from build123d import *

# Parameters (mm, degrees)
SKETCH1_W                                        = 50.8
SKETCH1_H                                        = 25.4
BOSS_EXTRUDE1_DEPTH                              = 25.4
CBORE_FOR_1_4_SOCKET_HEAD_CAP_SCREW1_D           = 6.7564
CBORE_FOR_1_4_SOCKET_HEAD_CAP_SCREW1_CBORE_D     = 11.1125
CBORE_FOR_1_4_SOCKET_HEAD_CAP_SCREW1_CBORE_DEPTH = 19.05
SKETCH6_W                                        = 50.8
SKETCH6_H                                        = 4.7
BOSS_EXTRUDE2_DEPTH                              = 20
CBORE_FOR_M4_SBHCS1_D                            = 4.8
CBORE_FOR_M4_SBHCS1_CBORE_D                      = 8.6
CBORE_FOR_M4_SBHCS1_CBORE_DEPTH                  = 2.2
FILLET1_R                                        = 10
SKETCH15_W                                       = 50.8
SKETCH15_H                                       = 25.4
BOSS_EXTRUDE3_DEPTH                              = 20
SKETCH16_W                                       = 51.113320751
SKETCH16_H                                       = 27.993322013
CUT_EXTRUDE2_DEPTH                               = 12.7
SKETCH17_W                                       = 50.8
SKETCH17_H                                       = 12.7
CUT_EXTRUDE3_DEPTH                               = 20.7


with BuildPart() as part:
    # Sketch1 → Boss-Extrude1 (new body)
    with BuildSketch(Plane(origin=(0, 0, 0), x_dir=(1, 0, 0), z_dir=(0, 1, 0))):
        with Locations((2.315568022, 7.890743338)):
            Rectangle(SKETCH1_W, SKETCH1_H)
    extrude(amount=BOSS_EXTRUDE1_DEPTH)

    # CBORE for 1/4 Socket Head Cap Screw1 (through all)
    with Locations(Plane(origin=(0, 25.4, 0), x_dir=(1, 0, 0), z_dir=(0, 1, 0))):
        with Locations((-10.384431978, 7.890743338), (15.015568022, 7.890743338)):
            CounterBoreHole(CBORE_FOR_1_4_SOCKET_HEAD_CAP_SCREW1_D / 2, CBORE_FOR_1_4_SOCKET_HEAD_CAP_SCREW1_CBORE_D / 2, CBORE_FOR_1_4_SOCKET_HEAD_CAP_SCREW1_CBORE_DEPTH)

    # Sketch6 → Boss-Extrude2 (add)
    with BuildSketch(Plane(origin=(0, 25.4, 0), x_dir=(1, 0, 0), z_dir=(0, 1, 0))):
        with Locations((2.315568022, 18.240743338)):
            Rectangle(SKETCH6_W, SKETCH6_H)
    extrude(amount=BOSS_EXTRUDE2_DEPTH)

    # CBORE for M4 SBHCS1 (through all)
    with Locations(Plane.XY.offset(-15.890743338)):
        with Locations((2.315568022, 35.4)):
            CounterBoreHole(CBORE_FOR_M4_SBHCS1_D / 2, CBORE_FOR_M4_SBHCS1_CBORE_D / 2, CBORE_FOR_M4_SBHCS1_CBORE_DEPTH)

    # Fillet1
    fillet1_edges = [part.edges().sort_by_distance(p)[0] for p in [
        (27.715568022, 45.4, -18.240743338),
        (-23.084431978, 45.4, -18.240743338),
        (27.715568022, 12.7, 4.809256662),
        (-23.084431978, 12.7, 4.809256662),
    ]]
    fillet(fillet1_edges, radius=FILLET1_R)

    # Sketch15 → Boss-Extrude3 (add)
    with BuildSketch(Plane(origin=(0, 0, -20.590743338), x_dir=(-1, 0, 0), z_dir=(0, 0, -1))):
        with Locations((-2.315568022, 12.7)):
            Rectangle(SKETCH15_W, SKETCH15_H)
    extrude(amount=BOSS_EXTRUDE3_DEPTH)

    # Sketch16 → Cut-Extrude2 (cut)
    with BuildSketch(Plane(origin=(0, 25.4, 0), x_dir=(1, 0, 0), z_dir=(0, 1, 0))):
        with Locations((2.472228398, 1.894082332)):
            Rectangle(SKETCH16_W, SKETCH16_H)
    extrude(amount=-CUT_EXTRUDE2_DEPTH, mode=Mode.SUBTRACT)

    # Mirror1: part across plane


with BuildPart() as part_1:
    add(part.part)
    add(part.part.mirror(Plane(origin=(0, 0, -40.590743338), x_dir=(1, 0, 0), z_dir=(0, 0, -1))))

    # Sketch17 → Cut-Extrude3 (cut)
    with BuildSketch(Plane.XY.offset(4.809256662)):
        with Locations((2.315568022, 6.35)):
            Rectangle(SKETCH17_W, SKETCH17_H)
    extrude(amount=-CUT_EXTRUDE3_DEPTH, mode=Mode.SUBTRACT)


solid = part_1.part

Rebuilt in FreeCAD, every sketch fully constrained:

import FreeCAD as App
import Part
import Sketcher

V = App.Vector


def edges_at(feature, points):
    """Names of the edges that pass closest to the given points."""
    edges = feature.Shape.Edges
    near = lambda p: min(range(len(edges)), key=lambda i: edges[i].distToShape(Part.Vertex(*p))[0])
    return sorted({f"Edge{near(p) + 1}" for p in points})

doc = App.newDocument("Part")
body = doc.addObject("PartDesign::Body", "Body")

sketch1 = body.newObject("Sketcher::SketchObject", "Sketch")
sketch1.AttachmentSupport = (doc.getObject("XZ_Plane"), [""])
sketch1.MapMode = "FlatFace"
sketch1.addGeometry(Part.LineSegment(V(-23, -21, 0), V(-23, 5, 0)), False)
sketch1.addGeometry(Part.LineSegment(V(-23, 5, 0), V(28, 5, 0)), False)
sketch1.addGeometry(Part.LineSegment(V(28, 5, 0), V(28, -21, 0)), False)
sketch1.addGeometry(Part.LineSegment(V(28, -21, 0), V(-23, -21, 0)), False)
sketch1.addConstraint(Sketcher.Constraint("Coincident", 0, 2, 1, 1))
sketch1.addConstraint(Sketcher.Constraint("Coincident", 1, 2, 2, 1))
sketch1.addConstraint(Sketcher.Constraint("Coincident", 2, 2, 3, 1))
sketch1.addConstraint(Sketcher.Constraint("Coincident", 3, 2, 0, 1))
sketch1.addConstraint(Sketcher.Constraint("Vertical", 0))
sketch1.addConstraint(Sketcher.Constraint("Horizontal", 1))
sketch1.addConstraint(Sketcher.Constraint("Vertical", 2))
sketch1.addConstraint(Sketcher.Constraint("Horizontal", 3))
sketch1.addConstraint(Sketcher.Constraint("DistanceX", 1, 1, 1, 2, 50.8))
sketch1.addConstraint(Sketcher.Constraint("DistanceY", 0, 1, 0, 2, 25.4))
sketch1.addConstraint(Sketcher.Constraint("DistanceX", 0, 2, -1, 1, 23.084432))
sketch1.addConstraint(Sketcher.Constraint("DistanceY", -1, 1, 0, 2, 4.809257))
pad1 = body.newObject("PartDesign::Pad", "Pad")
pad1.Profile = sketch1
pad1.Length = 25.4
pad1.Reversed = True

sketch2 = body.newObject("Sketcher::SketchObject", "Sketch001")
sketch2.AttachmentSupport = (doc.getObject("XZ_Plane"), [""])
sketch2.MapMode = "FlatFace"
sketch2.AttachmentOffset = App.Placement(V(0, 0, -25.4), App.Rotation())
sketch2.addGeometry(Part.Circle(V(-10.4, -7.9, 0), V(0, 0, 1), 3.4), False)
sketch2.addGeometry(Part.Circle(V(15, -7.9, 0), V(0, 0, 1), 3.4), False)
sketch2.addConstraint(Sketcher.Constraint("Equal", 0, 1))
sketch2.addConstraint(Sketcher.Constraint("Horizontal", 0, 3, 1, 3))
sketch2.addConstraint(Sketcher.Constraint("Diameter", 0, 6.7564))
sketch2.addConstraint(Sketcher.Constraint("DistanceX", 0, 3, 1, 3, 25.4))
sketch2.addConstraint(Sketcher.Constraint("DistanceX", 0, 3, -1, 1, 10.384432))
sketch2.addConstraint(Sketcher.Constraint("DistanceY", 0, 3, -1, 1, 7.890743))
doc.recompute()
hole = body.newObject("PartDesign::Hole", "Hole")
hole.Profile = sketch2
hole.ThreadType = "None"
hole.Diameter = 6.7564
hole.DepthType = "ThroughAll"
hole.HoleCutType = "Counterbore"
hole.HoleCutDiameter = 11.1125
hole.HoleCutDepth = 19.05
hole.Reversed = True

sketch3 = body.newObject("Sketcher::SketchObject", "Sketch002")
sketch3.AttachmentSupport = (doc.getObject("XZ_Plane"), [""])
sketch3.MapMode = "FlatFace"
sketch3.AttachmentOffset = App.Placement(V(0, 0, -25.4), App.Rotation())
sketch3.addGeometry(Part.LineSegment(V(-23.1, -20.6, 0), V(-23.1, -15.9, 0)), False)
sketch3.addGeometry(Part.LineSegment(V(-23.1, -15.9, 0), V(27.7, -15.9, 0)), False)
sketch3.addGeometry(Part.LineSegment(V(27.7, -15.9, 0), V(27.7, -20.6, 0)), False)
sketch3.addGeometry(Part.LineSegment(V(27.7, -20.6, 0), V(-23.1, -20.6, 0)), False)
sketch3.addConstraint(Sketcher.Constraint("Coincident", 0, 2, 1, 1))
sketch3.addConstraint(Sketcher.Constraint("Coincident", 1, 2, 2, 1))
sketch3.addConstraint(Sketcher.Constraint("Coincident", 2, 2, 3, 1))
sketch3.addConstraint(Sketcher.Constraint("Coincident", 3, 2, 0, 1))
sketch3.addConstraint(Sketcher.Constraint("Vertical", 0))
sketch3.addConstraint(Sketcher.Constraint("Horizontal", 1))
sketch3.addConstraint(Sketcher.Constraint("Vertical", 2))
sketch3.addConstraint(Sketcher.Constraint("Horizontal", 3))
sketch3.addConstraint(Sketcher.Constraint("DistanceX", 1, 1, 1, 2, 50.8))
sketch3.addConstraint(Sketcher.Constraint("DistanceY", 0, 1, 0, 2, 4.7))
sketch3.addConstraint(Sketcher.Constraint("DistanceX", 0, 2, -1, 1, 23.084432))
sketch3.addConstraint(Sketcher.Constraint("DistanceY", 0, 2, -1, 1, 15.890743))
pad2 = body.newObject("PartDesign::Pad", "Pad001")
pad2.Profile = sketch3
pad2.Length = 20
pad2.Reversed = True

sketch4 = body.newObject("Sketcher::SketchObject", "Sketch003")
sketch4.AttachmentSupport = (doc.getObject("XY_Plane"), [""])
sketch4.MapMode = "FlatFace"
sketch4.AttachmentOffset = App.Placement(V(0, 0, -15.890743), App.Rotation())
sketch4.addGeometry(Part.Circle(V(2.3, 35.4, 0), V(0, 0, 1), 2.4), False)
sketch4.addConstraint(Sketcher.Constraint("Diameter", 0, 4.8))
sketch4.addConstraint(Sketcher.Constraint("DistanceY", -1, 1, 0, 3, 35.4))
sketch4.addConstraint(Sketcher.Constraint("DistanceX", -1, 1, 0, 3, 2.315568))
doc.recompute()
hole2 = body.newObject("PartDesign::Hole", "Hole001")
hole2.Profile = sketch4
hole2.ThreadType = "None"
hole2.Diameter = 4.8
hole2.DepthType = "ThroughAll"
hole2.HoleCutType = "Counterbore"
hole2.HoleCutDiameter = 8.6
hole2.HoleCutDepth = 2.2
doc.recompute()

fillet = body.newObject("PartDesign::Fillet", "Fillet")
fillet.Base = (hole2, edges_at(hole2, [
    (27.716, 45.4, -18.241),
    (-23.084, 45.4, -18.241),
    (27.716, 12.7, 4.809),
    (-23.084, 12.7, 4.809),
]))
fillet.Radius = 10

sketch5 = body.newObject("Sketcher::SketchObject", "Sketch004")
sketch5.AttachmentSupport = (doc.getObject("XY_Plane"), [""])
sketch5.MapMode = "FlatFace"
sketch5.AttachmentOffset = App.Placement(V(0, 0, -20.590743), App.Rotation())
sketch5.addGeometry(Part.LineSegment(V(28, 25, 0), V(28, 0, 0)), False)
sketch5.addGeometry(Part.LineSegment(V(28, 0, 0), V(-23, 0, 0)), False)
sketch5.addGeometry(Part.LineSegment(V(-23, 0, 0), V(-23, 25, 0)), False)
sketch5.addGeometry(Part.LineSegment(V(-23, 25, 0), V(28, 25, 0)), False)
sketch5.addConstraint(Sketcher.Constraint("Coincident", 0, 2, 1, 1))
sketch5.addConstraint(Sketcher.Constraint("Coincident", 1, 2, 2, 1))
sketch5.addConstraint(Sketcher.Constraint("Coincident", 2, 2, 3, 1))
sketch5.addConstraint(Sketcher.Constraint("Coincident", 3, 2, 0, 1))
sketch5.addConstraint(Sketcher.Constraint("Vertical", 0))
sketch5.addConstraint(Sketcher.Constraint("Horizontal", 1))
sketch5.addConstraint(Sketcher.Constraint("Vertical", 2))
sketch5.addConstraint(Sketcher.Constraint("Horizontal", 3))
sketch5.addConstraint(Sketcher.Constraint("PointOnObject", 0, 2, -1))
sketch5.addConstraint(Sketcher.Constraint("DistanceX", 1, 2, 1, 1, 50.8))
sketch5.addConstraint(Sketcher.Constraint("DistanceY", 0, 2, 0, 1, 25.4))
sketch5.addConstraint(Sketcher.Constraint("DistanceX", -1, 1, 0, 2, 27.715568))
pad3 = body.newObject("PartDesign::Pad", "Pad002")
pad3.Profile = sketch5
pad3.Length = 20
pad3.Reversed = True

sketch6 = body.newObject("Sketcher::SketchObject", "Sketch005")
sketch6.AttachmentSupport = (doc.getObject("XZ_Plane"), [""])
sketch6.MapMode = "FlatFace"
sketch6.AttachmentOffset = App.Placement(V(0, 0, -25.4), App.Rotation())
sketch6.addGeometry(Part.LineSegment(V(-23, -16, 0), V(-23, 12, 0)), False)
sketch6.addGeometry(Part.LineSegment(V(-23, 12, 0), V(28, 12, 0)), False)
sketch6.addGeometry(Part.LineSegment(V(28, 12, 0), V(28, -16, 0)), False)
sketch6.addGeometry(Part.LineSegment(V(28, -16, 0), V(-23, -16, 0)), False)
sketch6.addConstraint(Sketcher.Constraint("Coincident", 0, 2, 1, 1))
sketch6.addConstraint(Sketcher.Constraint("Coincident", 1, 2, 2, 1))
sketch6.addConstraint(Sketcher.Constraint("Coincident", 2, 2, 3, 1))
sketch6.addConstraint(Sketcher.Constraint("Coincident", 3, 2, 0, 1))
sketch6.addConstraint(Sketcher.Constraint("Vertical", 0))
sketch6.addConstraint(Sketcher.Constraint("Horizontal", 1))
sketch6.addConstraint(Sketcher.Constraint("Vertical", 2))
sketch6.addConstraint(Sketcher.Constraint("Horizontal", 3))
sketch6.addConstraint(Sketcher.Constraint("DistanceX", 1, 1, 1, 2, 51.113321))
sketch6.addConstraint(Sketcher.Constraint("DistanceY", 0, 1, 0, 2, 27.993322))
sketch6.addConstraint(Sketcher.Constraint("DistanceX", 0, 2, -1, 1, 23.084432))
sketch6.addConstraint(Sketcher.Constraint("DistanceY", -1, 1, 0, 2, 12.102579))
pocket1 = body.newObject("PartDesign::Pocket", "Pocket")
pocket1.Profile = sketch6
pocket1.Length = 12.7
pocket1.Reversed = True
body2 = doc.addObject("PartDesign::Body", "Body001")
doc.recompute()

body2.BaseFeature = body
doc.recompute()

mirroring = doc.addObject("Part::Mirroring", "Mirroring")
mirroring.Source = body
mirroring.Base = V(0, 0, -40.590743)
mirroring.Normal = V(0, 0, -1)
body3 = doc.addObject("PartDesign::Body", "Body002")
body3.BaseFeature = mirroring
boolean = body2.newObject("PartDesign::Boolean", "Boolean")
boolean.Type = "Fuse"
boolean.addObjects([body3])
doc.recompute()

sketch7 = body2.newObject("Sketcher::SketchObject", "Sketch006")
sketch7.AttachmentSupport = (doc.getObject("XY_Plane001"), [""])
sketch7.MapMode = "FlatFace"
sketch7.AttachmentOffset = App.Placement(V(0, 0, 4.809257), App.Rotation())
sketch7.addGeometry(Part.LineSegment(V(-23, 13, 0), V(-23, 0, 0)), False)
sketch7.addGeometry(Part.LineSegment(V(-23, 0, 0), V(28, 0, 0)), False)
sketch7.addGeometry(Part.LineSegment(V(28, 0, 0), V(28, 13, 0)), False)
sketch7.addGeometry(Part.LineSegment(V(28, 13, 0), V(-23, 13, 0)), False)
sketch7.addConstraint(Sketcher.Constraint("Coincident", 0, 2, 1, 1))
sketch7.addConstraint(Sketcher.Constraint("Coincident", 1, 2, 2, 1))
sketch7.addConstraint(Sketcher.Constraint("Coincident", 2, 2, 3, 1))
sketch7.addConstraint(Sketcher.Constraint("Coincident", 3, 2, 0, 1))
sketch7.addConstraint(Sketcher.Constraint("Vertical", 0))
sketch7.addConstraint(Sketcher.Constraint("Horizontal", 1))
sketch7.addConstraint(Sketcher.Constraint("Vertical", 2))
sketch7.addConstraint(Sketcher.Constraint("Horizontal", 3))
sketch7.addConstraint(Sketcher.Constraint("PointOnObject", 0, 2, -1))
sketch7.addConstraint(Sketcher.Constraint("DistanceX", 1, 1, 1, 2, 50.8))
sketch7.addConstraint(Sketcher.Constraint("DistanceY", 0, 2, 0, 1, 12.7))
sketch7.addConstraint(Sketcher.Constraint("DistanceX", 0, 2, -1, 1, 23.084432))
pocket2 = body2.newObject("PartDesign::Pocket", "Pocket001")
pocket2.Profile = sketch7
pocket2.Length = 20.7
mirroring.Visibility = False

doc.recompute()
